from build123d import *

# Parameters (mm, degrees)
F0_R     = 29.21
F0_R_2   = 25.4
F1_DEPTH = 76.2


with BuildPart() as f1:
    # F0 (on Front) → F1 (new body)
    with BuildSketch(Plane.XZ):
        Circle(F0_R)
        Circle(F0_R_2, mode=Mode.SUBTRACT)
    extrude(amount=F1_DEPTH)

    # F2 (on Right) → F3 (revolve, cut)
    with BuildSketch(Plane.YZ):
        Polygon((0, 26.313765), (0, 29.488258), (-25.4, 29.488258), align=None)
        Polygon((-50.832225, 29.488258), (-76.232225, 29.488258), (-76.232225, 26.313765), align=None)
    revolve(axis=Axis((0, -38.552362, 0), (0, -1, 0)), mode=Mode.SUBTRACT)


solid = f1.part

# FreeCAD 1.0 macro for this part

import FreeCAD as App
import Part
import Sketcher
from FreeCAD import Vector
Q = App.Units.Quantity


def add_polygon(sketch, points):
    """Adds a closed chain of lines whose ends are joined by coincident constraints."""
    first, n = sketch.GeometryCount, len(points)
    for a, b in zip(points, points[1:] + points[:1]):
        sketch.addGeometry(Part.LineSegment(App.Vector(*a, 0), App.Vector(*b, 0)), False)
    for i in range(n):
        sketch.addConstraint(Sketcher.Constraint("Coincident", first + i, 2, first + (i + 1) % n, 1))

doc = App.newDocument("Part")
params = doc.addObject("Spreadsheet::Sheet", "Params")
for row, (alias, value) in enumerate([
    ("sketch1_diameter", "2 in"),
    ("sketch1_diameter2", "2.3 in"),
    ("pad1_length", "3 in"),
    ("sketch2_width", "1 in"),
    ("groove_angle", "360 deg"),
], start=1):
    params.set(f"A{row}", alias)
    params.set(f"B{row}", "=" + value)
    params.setAlias(f"B{row}", alias)

body = doc.addObject("PartDesign::Body", "Body")

# Sketch on XZ plane
sketch1 = body.newObject("Sketcher::SketchObject", "Sketch")
sketch1.AttachmentSupport = (doc.getObject("XZ_Plane"), [""])
sketch1.MapMode = "FlatFace"
sketch1.addGeometry([
    Part.Circle(Vector(0, 0, 0), Vector(0, 0, 1), 29),
    Part.Circle(Vector(0, 0, 0), Vector(0, 0, 1), 25),
], False)
sketch1.addConstraint([
    Sketcher.Constraint("Coincident", 0, 3, -1, 1),
    Sketcher.Constraint("Coincident", 1, 3, -1, 1),
    Sketcher.Constraint("Diameter", 1, Q("2 in")),
    Sketcher.Constraint("Diameter", 0, Q("2.3 in")),
])
sketch1.setExpression("Constraints[2]", "Params.sketch1_diameter")
sketch1.setExpression("Constraints[3]", "Params.sketch1_diameter2")
pad1 = body.newObject("PartDesign::Pad", "Pad")
pad1.Profile = sketch1
pad1.setExpression("Length", "Params.pad1_length")

# Sketch on YZ plane
sketch2 = body.newObject("Sketcher::SketchObject", "Sketch001")
sketch2.AttachmentSupport = (doc.getObject("YZ_Plane"), [""])
sketch2.MapMode = "FlatFace"
add_polygon(sketch2, [(0, 26.3), (0, 29.5), (-25.4, 29.5)])  # lines 0-2
add_polygon(sketch2, [(-50.8, 29.5), (-76.2, 29.5), (-76.2, 26.3)])  # lines 3-5
sketch2.addConstraint([
    Sketcher.Constraint("Vertical", 0),
    Sketcher.Constraint("Horizontal", 1),
    Sketcher.Constraint("Horizontal", 3),
    Sketcher.Constraint("Vertical", 4),
    Sketcher.Constraint("PointOnObject", 0, 2, -2),
    Sketcher.Constraint("Horizontal", 1, 2, 3, 2),
    Sketcher.Constraint("Horizontal", 2, 2, 4, 2),
    Sketcher.Constraint("Equal", 1, 3),
    Sketcher.Constraint("DistanceX", 1, 2, 1, 1, Q("1 in")),
    Sketcher.Constraint("DistanceY", 0, 1, 0, 2, 3.174493),
    Sketcher.Constraint("DistanceY", -1, 1, 0, 2, 29.488258),
    Sketcher.Constraint("DistanceX", 3, 2, -1, 1, 76.232225),
])
sketch2.setExpression("Constraints[14]", "Params.sketch2_width")
groove = body.newObject("PartDesign::Groove", "Groove")
groove.Profile = sketch2
groove.ReferenceAxis = (sketch2, ["H_Axis"])
groove.setExpression("Angle", "Params.groove_angle")

doc.recompute()
